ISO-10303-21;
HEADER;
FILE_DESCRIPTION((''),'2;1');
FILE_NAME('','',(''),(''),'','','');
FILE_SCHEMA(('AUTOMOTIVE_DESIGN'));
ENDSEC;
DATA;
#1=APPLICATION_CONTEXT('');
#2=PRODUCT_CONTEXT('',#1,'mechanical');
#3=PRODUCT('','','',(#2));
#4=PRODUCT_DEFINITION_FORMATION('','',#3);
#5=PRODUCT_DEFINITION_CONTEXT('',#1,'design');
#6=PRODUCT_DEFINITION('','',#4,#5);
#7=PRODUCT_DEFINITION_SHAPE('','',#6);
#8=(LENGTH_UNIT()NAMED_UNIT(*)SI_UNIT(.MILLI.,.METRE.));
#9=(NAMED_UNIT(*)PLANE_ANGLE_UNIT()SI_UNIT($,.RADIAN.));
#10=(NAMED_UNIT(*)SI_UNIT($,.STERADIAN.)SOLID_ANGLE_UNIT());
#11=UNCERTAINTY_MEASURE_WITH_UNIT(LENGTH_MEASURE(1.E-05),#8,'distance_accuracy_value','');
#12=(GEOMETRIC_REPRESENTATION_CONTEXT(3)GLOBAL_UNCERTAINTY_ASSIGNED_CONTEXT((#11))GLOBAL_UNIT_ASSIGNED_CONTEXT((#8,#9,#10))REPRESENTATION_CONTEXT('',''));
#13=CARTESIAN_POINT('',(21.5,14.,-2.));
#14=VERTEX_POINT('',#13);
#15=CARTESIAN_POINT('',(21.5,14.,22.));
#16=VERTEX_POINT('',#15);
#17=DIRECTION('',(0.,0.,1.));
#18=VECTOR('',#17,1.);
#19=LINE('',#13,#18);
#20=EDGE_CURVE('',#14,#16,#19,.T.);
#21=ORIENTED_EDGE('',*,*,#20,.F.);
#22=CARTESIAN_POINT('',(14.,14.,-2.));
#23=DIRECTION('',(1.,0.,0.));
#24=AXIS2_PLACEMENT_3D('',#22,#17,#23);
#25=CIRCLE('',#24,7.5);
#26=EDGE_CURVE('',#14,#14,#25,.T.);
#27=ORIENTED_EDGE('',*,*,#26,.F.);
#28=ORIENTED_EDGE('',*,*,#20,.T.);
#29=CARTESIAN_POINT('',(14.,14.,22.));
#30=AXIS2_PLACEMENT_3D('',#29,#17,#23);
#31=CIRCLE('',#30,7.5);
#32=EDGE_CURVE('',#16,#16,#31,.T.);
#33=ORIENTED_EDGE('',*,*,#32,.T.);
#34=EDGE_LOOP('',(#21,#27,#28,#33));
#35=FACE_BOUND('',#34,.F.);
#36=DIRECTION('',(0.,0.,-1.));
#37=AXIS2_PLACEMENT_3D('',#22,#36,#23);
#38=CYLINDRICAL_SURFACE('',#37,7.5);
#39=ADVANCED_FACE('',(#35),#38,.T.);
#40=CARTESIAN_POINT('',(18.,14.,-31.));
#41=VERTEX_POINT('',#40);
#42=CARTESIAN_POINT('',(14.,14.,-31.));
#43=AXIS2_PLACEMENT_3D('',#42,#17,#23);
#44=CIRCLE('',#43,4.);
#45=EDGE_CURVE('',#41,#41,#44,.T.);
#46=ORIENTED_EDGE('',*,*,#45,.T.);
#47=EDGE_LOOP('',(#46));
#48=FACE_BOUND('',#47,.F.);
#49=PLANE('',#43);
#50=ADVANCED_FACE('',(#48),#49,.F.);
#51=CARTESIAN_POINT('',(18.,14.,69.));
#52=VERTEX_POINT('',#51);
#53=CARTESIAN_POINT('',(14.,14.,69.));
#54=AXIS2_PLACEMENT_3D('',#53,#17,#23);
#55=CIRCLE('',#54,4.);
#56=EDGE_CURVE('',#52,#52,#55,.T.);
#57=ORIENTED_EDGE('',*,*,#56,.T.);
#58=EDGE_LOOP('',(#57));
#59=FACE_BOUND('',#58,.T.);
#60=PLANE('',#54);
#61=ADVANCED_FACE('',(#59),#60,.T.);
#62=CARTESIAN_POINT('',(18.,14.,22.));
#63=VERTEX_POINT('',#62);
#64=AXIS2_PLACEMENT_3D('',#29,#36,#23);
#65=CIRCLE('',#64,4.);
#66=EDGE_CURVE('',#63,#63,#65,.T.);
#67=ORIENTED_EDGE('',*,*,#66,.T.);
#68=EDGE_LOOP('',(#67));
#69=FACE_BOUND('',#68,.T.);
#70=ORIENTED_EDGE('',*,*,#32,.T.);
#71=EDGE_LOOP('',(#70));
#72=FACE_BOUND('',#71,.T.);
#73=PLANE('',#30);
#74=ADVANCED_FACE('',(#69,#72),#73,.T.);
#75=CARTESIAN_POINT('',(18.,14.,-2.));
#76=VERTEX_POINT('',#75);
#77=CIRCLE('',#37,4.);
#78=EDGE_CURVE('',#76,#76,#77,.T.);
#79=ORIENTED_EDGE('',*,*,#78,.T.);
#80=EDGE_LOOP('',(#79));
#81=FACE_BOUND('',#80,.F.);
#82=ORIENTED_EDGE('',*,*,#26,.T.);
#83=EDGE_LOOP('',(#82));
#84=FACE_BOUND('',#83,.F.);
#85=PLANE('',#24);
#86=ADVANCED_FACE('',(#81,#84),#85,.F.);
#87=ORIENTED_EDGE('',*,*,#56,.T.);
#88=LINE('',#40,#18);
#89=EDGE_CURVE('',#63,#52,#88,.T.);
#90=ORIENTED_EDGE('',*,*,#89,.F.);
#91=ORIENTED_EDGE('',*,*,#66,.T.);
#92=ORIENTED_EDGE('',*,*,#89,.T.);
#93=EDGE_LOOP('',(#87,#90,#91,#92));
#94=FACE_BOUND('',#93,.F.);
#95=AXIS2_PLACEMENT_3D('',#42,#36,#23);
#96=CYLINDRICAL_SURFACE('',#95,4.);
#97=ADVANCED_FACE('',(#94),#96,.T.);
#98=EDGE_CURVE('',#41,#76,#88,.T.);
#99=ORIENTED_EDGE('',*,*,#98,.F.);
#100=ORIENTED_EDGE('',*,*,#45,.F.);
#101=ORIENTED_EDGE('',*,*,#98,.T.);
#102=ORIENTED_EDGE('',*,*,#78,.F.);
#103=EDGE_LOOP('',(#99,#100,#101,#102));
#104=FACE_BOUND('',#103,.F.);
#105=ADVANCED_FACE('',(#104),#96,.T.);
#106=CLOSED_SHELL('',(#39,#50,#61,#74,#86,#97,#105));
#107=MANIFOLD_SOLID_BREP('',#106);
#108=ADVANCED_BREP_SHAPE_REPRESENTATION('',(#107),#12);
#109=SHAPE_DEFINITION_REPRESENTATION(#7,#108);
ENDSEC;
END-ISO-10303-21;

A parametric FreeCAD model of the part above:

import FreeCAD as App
import Part
import Sketcher
from FreeCAD import Vector

doc = App.newDocument("Part")
params = doc.addObject("Spreadsheet::Sheet", "Params")
for row, (alias, value) in enumerate([
    ("sketch1_diameter", "15 mm"),
    ("pad1_length", "24 mm"),
    ("sketch2_diameter", "8 mm"),
    ("pad2_length", "100 mm"),
], start=1):
    params.set(f"A{row}", alias)
    params.set(f"B{row}", "=" + value)
    params.setAlias(f"B{row}", alias)

body = doc.addObject("PartDesign::Body", "Body")

# Sketch on XY plane
sketch1 = body.newObject("Sketcher::SketchObject", "Sketch")
sketch1.AttachmentSupport = (doc.getObject("XY_Plane"), [""])
sketch1.MapMode = "FlatFace"
sketch1.AttachmentOffset = App.Placement(Vector(0, 0, -94), App.Rotation())
sketch1.addGeometry(Part.Circle(Vector(42, 0, 0), Vector(0, 0, 1), 7.5), False)
sketch1.addConstraint(Sketcher.Constraint("PointOnObject", 0, 3, -1))
sketch1.addConstraint(Sketcher.Constraint("Diameter", 0, 15.0))
sketch1.addConstraint(Sketcher.Constraint("DistanceX", -1, 1, 0, 3, 42.0))
sketch1.setExpression("Constraints[1]", "Params.sketch1_diameter")
pad1 = body.newObject("PartDesign::Pad", "Pad")
pad1.Profile = sketch1
pad1.setExpression("Length", "Params.pad1_length")
body2 = doc.addObject("PartDesign::Body", "Body001")

# Sketch on XY plane
sketch2 = body2.newObject("Sketcher::SketchObject", "Sketch001")
sketch2.AttachmentSupport = (doc.getObject("XY_Plane001"), [""])
sketch2.MapMode = "FlatFace"
sketch2.AttachmentOffset = App.Placement(Vector(0, 0, -123), App.Rotation())
sketch2.addGeometry(Part.Circle(Vector(42, 0, 0), Vector(0, 0, 1), 4), False)
sketch2.addConstraint(Sketcher.Constraint("PointOnObject", 0, 3, -1))
sketch2.addConstraint(Sketcher.Constraint("Diameter", 0, 8.0))
sketch2.addConstraint(Sketcher.Constraint("DistanceX", -1, 1, 0, 3, 42.0))
sketch2.setExpression("Constraints[1]", "Params.sketch2_diameter")
pad2 = body2.newObject("PartDesign::Pad", "Pad001")
pad2.Profile = sketch2
pad2.setExpression("Length", "Params.pad2_length")
doc.recompute()

boolean = body2.newObject("PartDesign::Boolean", "Boolean")
boolean.Type = "Fuse"
boolean.addObjects([body])
body3 = doc.addObject("PartDesign::Body", "Body002")
doc.recompute()

body2.Placement = App.Placement(Vector(-28, 14, 92), App.Rotation(Vector(0, 0, 1), 0))
boolean2 = body3.newObject("PartDesign::Boolean", "Boolean001")
boolean2.Type = "Fuse"
boolean2.addObjects([body2])

doc.recompute()
